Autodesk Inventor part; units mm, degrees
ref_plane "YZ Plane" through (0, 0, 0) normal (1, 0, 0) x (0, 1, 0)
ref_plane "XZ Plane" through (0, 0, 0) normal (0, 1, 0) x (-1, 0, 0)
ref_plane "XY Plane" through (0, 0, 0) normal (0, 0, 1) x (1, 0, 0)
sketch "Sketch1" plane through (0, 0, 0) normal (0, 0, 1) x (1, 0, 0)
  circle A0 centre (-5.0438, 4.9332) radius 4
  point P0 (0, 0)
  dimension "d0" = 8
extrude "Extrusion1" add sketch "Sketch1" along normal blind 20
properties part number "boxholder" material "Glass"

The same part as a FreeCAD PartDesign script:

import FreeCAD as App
import Part
import Sketcher
from FreeCAD import Vector

doc = App.newDocument("Part")
params = doc.addObject("Spreadsheet::Sheet", "Params")
for row, (alias, value) in enumerate([
    ("sketch1_diameter", "8 mm"),
    ("pad1_length", "20 mm"),
], start=1):
    params.set(f"A{row}", alias)
    params.set(f"B{row}", "=" + value)
    params.setAlias(f"B{row}", alias)

body = doc.addObject("PartDesign::Body", "Body")

# Sketch on XY plane
sketch1 = body.newObject("Sketcher::SketchObject", "Sketch")
sketch1.AttachmentSupport = (doc.getObject("XY_Plane"), [""])
sketch1.MapMode = "FlatFace"
sketch1.addGeometry(Part.Circle(Vector(-5.0438, 4.9332, 0), Vector(0, 0, 1), 4), False)
sketch1.addConstraint([
    Sketcher.Constraint("Diameter", 0, 8.0),
    Sketcher.Constraint("DistanceX", 0, 3, -1, 1, 5.0438),
    Sketcher.Constraint("DistanceY", -1, 1, 0, 3, 4.9332),
])
sketch1.setExpression("Constraints[0]", "Params.sketch1_diameter")
pad1 = body.newObject("PartDesign::Pad", "Pad")
pad1.Profile = sketch1
pad1.setExpression("Length", "Params.pad1_length")

doc.recompute()
